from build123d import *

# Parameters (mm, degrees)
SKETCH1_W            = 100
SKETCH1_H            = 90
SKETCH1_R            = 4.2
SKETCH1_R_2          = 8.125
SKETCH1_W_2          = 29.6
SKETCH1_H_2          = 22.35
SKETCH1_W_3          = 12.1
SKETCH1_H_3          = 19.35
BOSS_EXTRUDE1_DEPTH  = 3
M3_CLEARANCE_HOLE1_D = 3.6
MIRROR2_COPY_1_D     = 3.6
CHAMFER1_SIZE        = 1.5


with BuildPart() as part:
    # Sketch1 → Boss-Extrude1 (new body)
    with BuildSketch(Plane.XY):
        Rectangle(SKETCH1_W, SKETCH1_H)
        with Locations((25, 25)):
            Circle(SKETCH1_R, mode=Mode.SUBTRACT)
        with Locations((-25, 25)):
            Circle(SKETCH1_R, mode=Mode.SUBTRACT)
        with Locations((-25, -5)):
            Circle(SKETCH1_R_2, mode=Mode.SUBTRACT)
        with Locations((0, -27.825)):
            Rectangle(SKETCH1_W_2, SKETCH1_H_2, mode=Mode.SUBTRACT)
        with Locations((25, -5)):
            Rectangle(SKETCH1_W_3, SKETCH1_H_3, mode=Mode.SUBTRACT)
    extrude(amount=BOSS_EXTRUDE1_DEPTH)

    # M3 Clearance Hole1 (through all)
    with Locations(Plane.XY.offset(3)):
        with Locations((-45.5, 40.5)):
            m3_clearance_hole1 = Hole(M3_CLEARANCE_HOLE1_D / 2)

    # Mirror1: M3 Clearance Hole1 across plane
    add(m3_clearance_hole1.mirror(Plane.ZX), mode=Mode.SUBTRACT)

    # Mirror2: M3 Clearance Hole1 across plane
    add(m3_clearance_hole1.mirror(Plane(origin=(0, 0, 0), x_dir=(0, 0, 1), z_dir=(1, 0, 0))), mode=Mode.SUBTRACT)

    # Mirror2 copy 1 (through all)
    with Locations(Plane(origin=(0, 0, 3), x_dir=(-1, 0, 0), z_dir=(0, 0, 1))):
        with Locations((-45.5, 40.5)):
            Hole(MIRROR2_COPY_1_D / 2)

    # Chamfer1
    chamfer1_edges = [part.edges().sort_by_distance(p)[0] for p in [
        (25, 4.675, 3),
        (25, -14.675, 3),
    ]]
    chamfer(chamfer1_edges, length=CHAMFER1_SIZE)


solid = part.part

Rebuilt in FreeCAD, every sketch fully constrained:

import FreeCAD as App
import Part
import Sketcher
from FreeCAD import Vector
Q = App.Units.Quantity


def edges_at(feature, points):
    """Names of the edges that pass closest to the given points."""
    edges = feature.Shape.Edges
    near = lambda p: min(range(len(edges)), key=lambda i: edges[i].distToShape(Part.Vertex(*p))[0])
    return sorted({f"Edge{near(p) + 1}" for p in points})

doc = App.newDocument("Part")
params = doc.addObject("Spreadsheet::Sheet", "Params")
for row, (alias, value) in enumerate([
    ("sketch1_diameter", "8.4 mm"),
    ("sketch1_diameter2", "16.25 mm"),
    ("sketch1_width", "100 mm"),
    ("sketch1_height", "90 mm"),
    ("sketch1_width2", "29.6 mm"),
    ("pad1_length", "3 mm"),
    ("sketch2_diameter", "3.6 mm"),
    ("hole_diameter", "3.6 mm"),
    ("sketch3_diameter", "3.6 mm"),
    ("hole2_diameter", "3.6 mm"),
    ("chamfer_size", "1.5 mm"),
], start=1):
    params.set(f"A{row}", alias)
    params.set(f"B{row}", "=" + value)
    params.setAlias(f"B{row}", alias)

body = doc.addObject("PartDesign::Body", "Body")

# Sketch on XY plane
sketch1 = body.newObject("Sketcher::SketchObject", "Sketch")
sketch1.AttachmentSupport = (doc.getObject("XY_Plane"), [""])
sketch1.MapMode = "FlatFace"
sketch1.addGeometry([
    Part.LineSegment(Vector(-50, 45, 0), Vector(-50, -45, 0)),  # 0
    Part.LineSegment(Vector(-50, -45, 0), Vector(50, -45, 0)),  # 1
    Part.LineSegment(Vector(50, -45, 0), Vector(50, 45, 0)),  # 2
    Part.LineSegment(Vector(50, 45, 0), Vector(-50, 45, 0)),  # 3
    Part.Circle(Vector(-25, -5, 0), Vector(0, 0, 1), 8.1),  # 4
    Part.LineSegment(Vector(14.8, -39, 0), Vector(-14.8, -39, 0)),  # 5
    Part.LineSegment(Vector(-14.8, -39, 0), Vector(-14.8, -16.6, 0)),  # 6
    Part.LineSegment(Vector(-14.8, -16.6, 0), Vector(14.8, -16.6, 0)),  # 7
    Part.LineSegment(Vector(14.8, -16.6, 0), Vector(14.8, -39, 0)),  # 8
    Part.LineSegment(Vector(31.1, -14.7, 0), Vector(18.9, -14.7, 0)),  # 9
    Part.LineSegment(Vector(18.9, -14.7, 0), Vector(18.9, 4.7, 0)),  # 10
    Part.LineSegment(Vector(18.9, 4.7, 0), Vector(31.1, 4.7, 0)),  # 11
    Part.LineSegment(Vector(31.1, 4.7, 0), Vector(31.1, -14.7, 0)),  # 12
    Part.Circle(Vector(-25, 25, 0), Vector(0, 0, 1), 4.2),  # 13
    Part.Circle(Vector(25, 25, 0), Vector(0, 0, 1), 4.2),  # 14
], False)
sketch1.addConstraint([
    Sketcher.Constraint("Coincident", 0, 2, 1, 1),
    Sketcher.Constraint("Coincident", 1, 2, 2, 1),
    Sketcher.Constraint("Coincident", 2, 2, 3, 1),
    Sketcher.Constraint("Coincident", 3, 2, 0, 1),
    Sketcher.Constraint("Coincident", 5, 2, 6, 1),
    Sketcher.Constraint("Coincident", 6, 2, 7, 1),
    Sketcher.Constraint("Coincident", 7, 2, 8, 1),
    Sketcher.Constraint("Coincident", 8, 2, 5, 1),
    Sketcher.Constraint("Coincident", 9, 2, 10, 1),
    Sketcher.Constraint("Coincident", 10, 2, 11, 1),
    Sketcher.Constraint("Coincident", 11, 2, 12, 1),
    Sketcher.Constraint("Coincident", 12, 2, 9, 1),
    Sketcher.Constraint("Vertical", 0),
    Sketcher.Constraint("Horizontal", 1),
    Sketcher.Constraint("Vertical", 2),
    Sketcher.Constraint("Horizontal", 3),
    Sketcher.Constraint("Horizontal", 5),
    Sketcher.Constraint("Vertical", 6),
    Sketcher.Constraint("Horizontal", 7),
    Sketcher.Constraint("Vertical", 8),
    Sketcher.Constraint("Horizontal", 9),
    Sketcher.Constraint("Vertical", 10),
    Sketcher.Constraint("Horizontal", 11),
    Sketcher.Constraint("Vertical", 12),
    Sketcher.Constraint("Equal", 13, 14),
    Sketcher.Constraint("Symmetric", 0, 2, 2, 2, -1, 1),
    Sketcher.Constraint("Symmetric", 13, 3, 14, 3, -2),
    Sketcher.Constraint("Vertical", 4, 3, 13, 3),
    Sketcher.Constraint("Diameter", 13, Q("8.4 mm")),
    Sketcher.Constraint("Diameter", 4, Q("16.25 mm")),
    Sketcher.Constraint("DistanceX", 1, 1, 1, 2, Q("100 mm")),
    Sketcher.Constraint("DistanceY", 0, 2, 0, 1, Q("90 mm")),
    Sketcher.Constraint("DistanceX", 5, 2, 5, 1, Q("29.6 mm")),
    Sketcher.Constraint("DistanceX", 9, 2, 9, 1, Q("12.1 mm")),
    Sketcher.Constraint("DistanceX", 4, 3, -1, 1, Q("25 mm")),
    Sketcher.Constraint("DistanceY", 4, 3, -1, 1, Q("5 mm")),
    Sketcher.Constraint("DistanceY", -1, 1, 13, 3, Q("25 mm")),
    Sketcher.Constraint("DistanceY", 5, 2, -1, 1, Q("39 mm")),
    Sketcher.Constraint("DistanceY", 6, 1, 6, 2, Q("22.35 mm")),
    Sketcher.Constraint("DistanceY", 10, 1, 10, 2, Q("19.35 mm")),
    Sketcher.Constraint("DistanceX", 5, 2, -1, 1, Q("14.8 mm")),
    Sketcher.Constraint("DistanceX", -1, 1, 9, 2, Q("18.95 mm")),
    Sketcher.Constraint("DistanceY", 9, 2, -1, 1, Q("14.675 mm")),
])
sketch1.setExpression("Constraints[28]", "Params.sketch1_diameter")
sketch1.setExpression("Constraints[29]", "Params.sketch1_diameter2")
sketch1.setExpression("Constraints[30]", "Params.sketch1_width")
sketch1.setExpression("Constraints[31]", "Params.sketch1_height")
sketch1.setExpression("Constraints[32]", "Params.sketch1_width2")
pad1 = body.newObject("PartDesign::Pad", "Pad")
pad1.Profile = sketch1
pad1.setExpression("Length", "Params.pad1_length")

# Sketch on XY plane
sketch2 = body.newObject("Sketcher::SketchObject", "Sketch001")
sketch2.AttachmentSupport = (doc.getObject("XY_Plane"), [""])
sketch2.MapMode = "FlatFace"
sketch2.AttachmentOffset = App.Placement(Vector(0, 0, 3), App.Rotation())
sketch2.addGeometry(Part.Circle(Vector(-45.5, 40.5, 0), Vector(0, 0, 1), 1.8), False)
sketch2.addConstraint([
    Sketcher.Constraint("Diameter", 0, Q("3.6 mm")),
    Sketcher.Constraint("DistanceX", 0, 3, -1, 1, Q("45.5 mm")),
    Sketcher.Constraint("DistanceY", -1, 1, 0, 3, Q("40.5 mm")),
])
sketch2.setExpression("Constraints[0]", "Params.sketch2_diameter")
doc.recompute()
hole = body.newObject("PartDesign::Hole", "Hole")
hole.Profile = sketch2
hole.ThreadType = "None"
hole.setExpression("Diameter", "Params.hole_diameter")
hole.DepthType = "ThroughAll"
doc.recompute()

mirrored = body.newObject("PartDesign::Mirrored", "Mirrored")
mirrored.Originals = [hole]
mirrored.MirrorPlane = (doc.getObject("XZ_Plane"), [""])
body.Tip = mirrored
doc.recompute()

mirrored2 = body.newObject("PartDesign::Mirrored", "Mirrored001")
mirrored2.Originals = [hole]
mirrored2.MirrorPlane = (doc.getObject("YZ_Plane"), [""])
body.Tip = mirrored2

# Sketch on XY plane
sketch3 = body.newObject("Sketcher::SketchObject", "Sketch002")
sketch3.AttachmentSupport = (doc.getObject("XY_Plane"), [""])
sketch3.MapMode = "FlatFace"
sketch3.AttachmentOffset = App.Placement(Vector(0, 0, 3), App.Rotation())
sketch3.addGeometry(Part.Circle(Vector(45.5, -40.5, 0), Vector(0, 0, 1), 1.8), False)
sketch3.addConstraint([
    Sketcher.Constraint("Diameter", 0, Q("3.6 mm")),
    Sketcher.Constraint("DistanceX", -1, 1, 0, 3, Q("45.5 mm")),
    Sketcher.Constraint("DistanceY", 0, 3, -1, 1, Q("40.5 mm")),
])
sketch3.setExpression("Constraints[0]", "Params.sketch3_diameter")
doc.recompute()
hole2 = body.newObject("PartDesign::Hole", "Hole001")
hole2.Profile = sketch3
hole2.ThreadType = "None"
hole2.setExpression("Diameter", "Params.hole2_diameter")
hole2.DepthType = "ThroughAll"
doc.recompute()

chamfer = body.newObject("PartDesign::Chamfer", "Chamfer")
chamfer.Base = (hole2, edges_at(hole2, [(25, 4.675, 3), (25, -14.675, 3)]))
chamfer.setExpression("Size", "Params.chamfer_size")

doc.recompute()
